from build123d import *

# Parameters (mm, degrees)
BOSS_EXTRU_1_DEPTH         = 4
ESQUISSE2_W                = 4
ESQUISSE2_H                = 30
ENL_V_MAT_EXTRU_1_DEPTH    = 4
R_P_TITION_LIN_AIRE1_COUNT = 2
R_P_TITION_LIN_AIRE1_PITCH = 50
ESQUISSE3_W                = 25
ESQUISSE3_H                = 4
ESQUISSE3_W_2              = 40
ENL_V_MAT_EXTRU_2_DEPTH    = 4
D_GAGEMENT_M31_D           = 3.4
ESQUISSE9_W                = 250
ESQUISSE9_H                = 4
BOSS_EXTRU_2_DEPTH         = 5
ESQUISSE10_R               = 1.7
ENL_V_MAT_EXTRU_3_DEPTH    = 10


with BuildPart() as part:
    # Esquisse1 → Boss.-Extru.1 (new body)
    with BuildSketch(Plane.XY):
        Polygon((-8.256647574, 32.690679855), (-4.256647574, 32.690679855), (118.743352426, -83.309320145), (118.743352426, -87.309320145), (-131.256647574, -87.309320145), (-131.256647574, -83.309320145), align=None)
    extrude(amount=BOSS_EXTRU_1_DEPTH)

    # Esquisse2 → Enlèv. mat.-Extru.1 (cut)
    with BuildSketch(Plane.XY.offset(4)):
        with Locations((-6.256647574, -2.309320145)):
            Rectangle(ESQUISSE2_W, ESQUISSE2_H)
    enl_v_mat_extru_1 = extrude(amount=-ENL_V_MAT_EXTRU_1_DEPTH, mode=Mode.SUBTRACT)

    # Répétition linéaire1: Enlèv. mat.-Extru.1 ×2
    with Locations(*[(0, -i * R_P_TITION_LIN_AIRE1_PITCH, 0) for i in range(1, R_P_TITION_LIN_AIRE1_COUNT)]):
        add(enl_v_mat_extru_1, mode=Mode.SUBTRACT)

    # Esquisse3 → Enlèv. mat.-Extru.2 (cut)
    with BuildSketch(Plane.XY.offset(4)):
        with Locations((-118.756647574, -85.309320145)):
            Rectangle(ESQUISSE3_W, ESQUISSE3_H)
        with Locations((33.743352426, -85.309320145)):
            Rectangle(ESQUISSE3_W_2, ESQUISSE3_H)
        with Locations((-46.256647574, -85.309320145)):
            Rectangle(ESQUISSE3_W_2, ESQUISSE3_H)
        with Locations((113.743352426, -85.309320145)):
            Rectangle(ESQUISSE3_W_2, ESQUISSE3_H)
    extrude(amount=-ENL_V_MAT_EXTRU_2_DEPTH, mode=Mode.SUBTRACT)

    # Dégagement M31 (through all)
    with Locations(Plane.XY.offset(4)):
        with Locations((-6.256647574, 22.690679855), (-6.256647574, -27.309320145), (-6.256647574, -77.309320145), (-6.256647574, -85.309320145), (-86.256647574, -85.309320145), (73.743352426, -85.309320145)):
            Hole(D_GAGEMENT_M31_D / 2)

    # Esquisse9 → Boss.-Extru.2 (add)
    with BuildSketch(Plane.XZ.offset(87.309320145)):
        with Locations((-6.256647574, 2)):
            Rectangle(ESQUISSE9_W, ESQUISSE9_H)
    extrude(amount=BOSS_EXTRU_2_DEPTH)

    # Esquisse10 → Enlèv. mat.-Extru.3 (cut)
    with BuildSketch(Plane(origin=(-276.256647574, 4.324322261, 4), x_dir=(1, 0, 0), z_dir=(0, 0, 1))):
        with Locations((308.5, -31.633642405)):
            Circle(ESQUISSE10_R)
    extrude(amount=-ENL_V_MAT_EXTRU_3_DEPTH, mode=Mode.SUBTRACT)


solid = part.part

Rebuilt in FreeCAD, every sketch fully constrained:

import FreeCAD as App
import Part
import Sketcher

V = App.Vector

doc = App.newDocument("Part")
body = doc.addObject("PartDesign::Body", "Body")

# Sketch on XY plane
sketch1 = body.newObject("Sketcher::SketchObject", "Sketch")
sketch1.AttachmentSupport = (doc.getObject("XY_Plane"), [""])
sketch1.MapMode = "FlatFace"
sketch1.addGeometry([
    Part.LineSegment(V(-4.3, 32.7, 0), V(-8.3, 32.7, 0)),  # 0
    Part.LineSegment(V(-8.3, 32.7, 0), V(-131.3, -83.3, 0)),  # 1
    Part.LineSegment(V(-131.3, -83.3, 0), V(-131.3, -87.3, 0)),  # 2
    Part.LineSegment(V(-131.3, -87.3, 0), V(118.7, -87.3, 0)),  # 3
    Part.LineSegment(V(118.7, -87.3, 0), V(118.7, -83.3, 0)),  # 4
    Part.LineSegment(V(118.7, -83.3, 0), V(-4.3, 32.7, 0)),  # 5
], False)
sketch1.addConstraint([
    Sketcher.Constraint("Coincident", 0, 2, 1, 1),
    Sketcher.Constraint("Coincident", 1, 2, 2, 1),
    Sketcher.Constraint("Coincident", 2, 2, 3, 1),
    Sketcher.Constraint("Coincident", 3, 2, 4, 1),
    Sketcher.Constraint("Coincident", 4, 2, 5, 1),
    Sketcher.Constraint("Coincident", 5, 2, 0, 1),
    Sketcher.Constraint("Horizontal", 0),
    Sketcher.Constraint("Vertical", 2),
    Sketcher.Constraint("Horizontal", 3),
    Sketcher.Constraint("Vertical", 4),
    Sketcher.Constraint("Horizontal", 1, 2, 4, 2),
    Sketcher.Constraint("Equal", 0, 2),
    Sketcher.Constraint("Equal", 1, 5),
    Sketcher.Constraint("DistanceX", 0, 2, 0, 1, 4.0),
    Sketcher.Constraint("DistanceX", 3, 1, 3, 2, 250.0),
    Sketcher.Constraint("DistanceY", 1, 2, 0, 2, 116.0),
    Sketcher.Constraint("DistanceY", -1, 1, 0, 2, 32.69068),
    Sketcher.Constraint("DistanceX", 0, 2, -1, 1, 8.256648),
])
pad1 = body.newObject("PartDesign::Pad", "Pad")
pad1.Profile = sketch1
pad1.Length = 4

# Sketch on XY plane
sketch2 = body.newObject("Sketcher::SketchObject", "Sketch001")
sketch2.AttachmentSupport = (doc.getObject("XY_Plane"), [""])
sketch2.MapMode = "FlatFace"
sketch2.AttachmentOffset = App.Placement(V(0, 0, 4), App.Rotation())
sketch2.addGeometry([
    Part.LineSegment(V(-8.3, 12.7, 0), V(-8.3, -17.3, 0)),
    Part.LineSegment(V(-8.3, -17.3, 0), V(-4.3, -17.3, 0)),
    Part.LineSegment(V(-4.3, -17.3, 0), V(-4.3, 12.7, 0)),
    Part.LineSegment(V(-4.3, 12.7, 0), V(-8.3, 12.7, 0)),
], False)
sketch2.addConstraint([
    Sketcher.Constraint("Coincident", 0, 2, 1, 1),
    Sketcher.Constraint("Coincident", 1, 2, 2, 1),
    Sketcher.Constraint("Coincident", 2, 2, 3, 1),
    Sketcher.Constraint("Coincident", 3, 2, 0, 1),
    Sketcher.Constraint("Vertical", 0),
    Sketcher.Constraint("Horizontal", 1),
    Sketcher.Constraint("Vertical", 2),
    Sketcher.Constraint("Horizontal", 3),
    Sketcher.Constraint("DistanceX", 1, 1, 1, 2, 4.0),
    Sketcher.Constraint("DistanceY", 0, 2, 0, 1, 30.0),
    Sketcher.Constraint("DistanceY", 0, 2, -1, 1, 17.30932),
    Sketcher.Constraint("DistanceX", 0, 2, -1, 1, 8.256648),
])
pocket1 = body.newObject("PartDesign::Pocket", "Pocket")
pocket1.Profile = sketch2
pocket1.Length = 4
doc.recompute()

linearpattern = body.newObject("PartDesign::LinearPattern", "LinearPattern")
linearpattern.Originals = [pocket1]
linearpattern.Direction = (doc.getObject("Y_Axis"), [""])
linearpattern.Mode = "offset"
linearpattern.Offset = 50
linearpattern.Occurrences = 2
linearpattern.Reversed = True
body.Tip = linearpattern

# Sketch on XY plane
sketch3 = body.newObject("Sketcher::SketchObject", "Sketch002")
sketch3.AttachmentSupport = (doc.getObject("XY_Plane"), [""])
sketch3.MapMode = "FlatFace"
sketch3.AttachmentOffset = App.Placement(V(0, 0, 4), App.Rotation())
sketch3.addGeometry([
    Part.LineSegment(V(-131.3, -83.3, 0), V(-131.3, -87.3, 0)),  # 0
    Part.LineSegment(V(-131.3, -87.3, 0), V(-106.3, -87.3, 0)),  # 1
    Part.LineSegment(V(-106.3, -87.3, 0), V(-106.3, -83.3, 0)),  # 2
    Part.LineSegment(V(-106.3, -83.3, 0), V(-131.3, -83.3, 0)),  # 3
    Part.LineSegment(V(13.7, -83.3, 0), V(13.7, -87.3, 0)),  # 4
    Part.LineSegment(V(13.7, -87.3, 0), V(53.7, -87.3, 0)),  # 5
    Part.LineSegment(V(53.7, -87.3, 0), V(53.7, -83.3, 0)),  # 6
    Part.LineSegment(V(53.7, -83.3, 0), V(13.7, -83.3, 0)),  # 7
    Part.LineSegment(V(-66.3, -83.3, 0), V(-66.3, -87.3, 0)),  # 8
    Part.LineSegment(V(-66.3, -87.3, 0), V(-26.3, -87.3, 0)),  # 9
    Part.LineSegment(V(-26.3, -87.3, 0), V(-26.3, -83.3, 0)),  # 10
    Part.LineSegment(V(-26.3, -83.3, 0), V(-66.3, -83.3, 0)),  # 11
    Part.LineSegment(V(93.7, -83.3, 0), V(93.7, -87.3, 0)),  # 12
    Part.LineSegment(V(93.7, -87.3, 0), V(133.7, -87.3, 0)),  # 13
    Part.LineSegment(V(133.7, -87.3, 0), V(133.7, -83.3, 0)),  # 14
    Part.LineSegment(V(133.7, -83.3, 0), V(93.7, -83.3, 0)),  # 15
], False)
sketch3.addConstraint([
    Sketcher.Constraint("Coincident", 0, 2, 1, 1),
    Sketcher.Constraint("Coincident", 1, 2, 2, 1),
    Sketcher.Constraint("Coincident", 2, 2, 3, 1),
    Sketcher.Constraint("Coincident", 3, 2, 0, 1),
    Sketcher.Constraint("Coincident", 4, 2, 5, 1),
    Sketcher.Constraint("Coincident", 5, 2, 6, 1),
    Sketcher.Constraint("Coincident", 6, 2, 7, 1),
    Sketcher.Constraint("Coincident", 7, 2, 4, 1),
    Sketcher.Constraint("Coincident", 8, 2, 9, 1),
    Sketcher.Constraint("Coincident", 9, 2, 10, 1),
    Sketcher.Constraint("Coincident", 10, 2, 11, 1),
    Sketcher.Constraint("Coincident", 11, 2, 8, 1),
    Sketcher.Constraint("Coincident", 12, 2, 13, 1),
    Sketcher.Constraint("Coincident", 13, 2, 14, 1),
    Sketcher.Constraint("Coincident", 14, 2, 15, 1),
    Sketcher.Constraint("Coincident", 15, 2, 12, 1),
    Sketcher.Constraint("Vertical", 0),
    Sketcher.Constraint("Horizontal", 1),
    Sketcher.Constraint("Vertical", 2),
    Sketcher.Constraint("Horizontal", 3),
    Sketcher.Constraint("Vertical", 4),
    Sketcher.Constraint("Horizontal", 5),
    Sketcher.Constraint("Vertical", 6),
    Sketcher.Constraint("Horizontal", 7),
    Sketcher.Constraint("Vertical", 8),
    Sketcher.Constraint("Horizontal", 9),
    Sketcher.Constraint("Vertical", 10),
    Sketcher.Constraint("Horizontal", 11),
    Sketcher.Constraint("Vertical", 12),
    Sketcher.Constraint("Horizontal", 13),
    Sketcher.Constraint("Vertical", 14),
    Sketcher.Constraint("Horizontal", 15),
    Sketcher.Constraint("Horizontal", 1, 2, 4, 2),
    Sketcher.Constraint("Horizontal", 3, 2, 6, 2),
    Sketcher.Constraint("Horizontal", 5, 2, 8, 2),
    Sketcher.Constraint("Horizontal", 7, 2, 10, 2),
    Sketcher.Constraint("Horizontal", 9, 2, 12, 2),
    Sketcher.Constraint("Horizontal", 11, 2, 14, 2),
    Sketcher.Constraint("Equal", 7, 9),
    Sketcher.Constraint("Equal", 11, 13),
    Sketcher.Constraint("DistanceX", 1, 1, 1, 2, 25.0),
    Sketcher.Constraint("DistanceX", 5, 1, 5, 2, 40.0),
    Sketcher.Constraint("DistanceY", 0, 2, 0, 1, 4.0),
    Sketcher.Constraint("DistanceX", 1, 2, 4, 2, 120.0),
    Sketcher.Constraint("DistanceX", 1, 2, 8, 2, 40.0),
    Sketcher.Constraint("DistanceX", 5, 2, 12, 2, 40.0),
    Sketcher.Constraint("DistanceY", 0, 2, -1, 1, 87.30932),
    Sketcher.Constraint("DistanceX", 0, 2, -1, 1, 131.256648),
])
pocket2 = body.newObject("PartDesign::Pocket", "Pocket001")
pocket2.Profile = sketch3
pocket2.Length = 4

# Sketch on XY plane
sketch4 = body.newObject("Sketcher::SketchObject", "Sketch003")
sketch4.AttachmentSupport = (doc.getObject("XY_Plane"), [""])
sketch4.MapMode = "FlatFace"
sketch4.AttachmentOffset = App.Placement(V(0, 0, 4), App.Rotation())
sketch4.addGeometry([
    Part.Circle(V(-6.3, 22.7, 0), V(0, 0, 1), 1.7),  # 0
    Part.Circle(V(-6.3, -27.3, 0), V(0, 0, 1), 1.7),  # 1
    Part.Circle(V(-6.3, -77.3, 0), V(0, 0, 1), 1.7),  # 2
    Part.Circle(V(-6.3, -85.3, 0), V(0, 0, 1), 1.7),  # 3
    Part.Circle(V(-86.3, -85.3, 0), V(0, 0, 1), 1.7),  # 4
    Part.Circle(V(73.7, -85.3, 0), V(0, 0, 1), 1.7),  # 5
], False)
sketch4.addConstraint([
    Sketcher.Constraint("Equal", 0, 1),
    Sketcher.Constraint("Equal", 1, 2),
    Sketcher.Constraint("Equal", 2, 3),
    Sketcher.Constraint("Equal", 3, 4),
    Sketcher.Constraint("Equal", 4, 5),
    Sketcher.Constraint("Horizontal", 3, 3, 4, 3),
    Sketcher.Constraint("Horizontal", 4, 3, 5, 3),
    Sketcher.Constraint("Vertical", 0, 3, 1, 3),
    Sketcher.Constraint("Vertical", 1, 3, 2, 3),
    Sketcher.Constraint("Vertical", 2, 3, 3, 3),
    Sketcher.Constraint("Diameter", 0, 3.4),
    Sketcher.Constraint("DistanceY", 1, 3, 0, 3, 50.0),
    Sketcher.Constraint("DistanceY", 2, 3, 1, 3, 50.0),
    Sketcher.Constraint("DistanceY", 3, 3, 2, 3, 8.0),
    Sketcher.Constraint("DistanceX", 4, 3, 3, 3, 80.0),
    Sketcher.Constraint("DistanceX", 3, 3, 5, 3, 80.0),
    Sketcher.Constraint("DistanceY", -1, 1, 0, 3, 22.69068),
    Sketcher.Constraint("DistanceX", 0, 3, -1, 1, 6.256648),
])
doc.recompute()
hole = body.newObject("PartDesign::Hole", "Hole")
hole.Profile = sketch4
hole.ThreadType = "None"
hole.Diameter = 3.4
hole.DepthType = "ThroughAll"

# Sketch on XZ plane
sketch5 = body.newObject("Sketcher::SketchObject", "Sketch004")
sketch5.AttachmentSupport = (doc.getObject("XZ_Plane"), [""])
sketch5.MapMode = "FlatFace"
sketch5.AttachmentOffset = App.Placement(V(0, 0, 87.30932), App.Rotation())
sketch5.addGeometry([
    Part.LineSegment(V(-131.3, 4, 0), V(-131.3, 0, 0)),
    Part.LineSegment(V(-131.3, 0, 0), V(118.7, 0, 0)),
    Part.LineSegment(V(118.7, 0, 0), V(118.7, 4, 0)),
    Part.LineSegment(V(118.7, 4, 0), V(-131.3, 4, 0)),
], False)
sketch5.addConstraint([
    Sketcher.Constraint("Coincident", 0, 2, 1, 1),
    Sketcher.Constraint("Coincident", 1, 2, 2, 1),
    Sketcher.Constraint("Coincident", 2, 2, 3, 1),
    Sketcher.Constraint("Coincident", 3, 2, 0, 1),
    Sketcher.Constraint("Vertical", 0),
    Sketcher.Constraint("Horizontal", 1),
    Sketcher.Constraint("Vertical", 2),
    Sketcher.Constraint("Horizontal", 3),
    Sketcher.Constraint("PointOnObject", 0, 2, -1),
    Sketcher.Constraint("DistanceX", 1, 1, 1, 2, 250.0),
    Sketcher.Constraint("DistanceY", 0, 2, 0, 1, 4.0),
    Sketcher.Constraint("DistanceX", 0, 2, -1, 1, 131.256648),
])
pad2 = body.newObject("PartDesign::Pad", "Pad001")
pad2.Profile = sketch5
pad2.Length = 5

# Sketch on XY plane
sketch6 = body.newObject("Sketcher::SketchObject", "Sketch005")
sketch6.AttachmentSupport = (doc.getObject("XY_Plane"), [""])
sketch6.MapMode = "FlatFace"
sketch6.AttachmentOffset = App.Placement(V(0, 0, 4), App.Rotation())
sketch6.addGeometry(Part.Circle(V(32.2, -27.3, 0), V(0, 0, 1), 1.7), False)
sketch6.addConstraint([
    Sketcher.Constraint("Diameter", 0, 3.4),
    Sketcher.Constraint("DistanceY", 0, 3, -1, 1, 27.30932),
    Sketcher.Constraint("DistanceX", -1, 1, 0, 3, 32.243352),
])
pocket3 = body.newObject("PartDesign::Pocket", "Pocket002")
pocket3.Profile = sketch6
pocket3.Length = 10

doc.recompute()
